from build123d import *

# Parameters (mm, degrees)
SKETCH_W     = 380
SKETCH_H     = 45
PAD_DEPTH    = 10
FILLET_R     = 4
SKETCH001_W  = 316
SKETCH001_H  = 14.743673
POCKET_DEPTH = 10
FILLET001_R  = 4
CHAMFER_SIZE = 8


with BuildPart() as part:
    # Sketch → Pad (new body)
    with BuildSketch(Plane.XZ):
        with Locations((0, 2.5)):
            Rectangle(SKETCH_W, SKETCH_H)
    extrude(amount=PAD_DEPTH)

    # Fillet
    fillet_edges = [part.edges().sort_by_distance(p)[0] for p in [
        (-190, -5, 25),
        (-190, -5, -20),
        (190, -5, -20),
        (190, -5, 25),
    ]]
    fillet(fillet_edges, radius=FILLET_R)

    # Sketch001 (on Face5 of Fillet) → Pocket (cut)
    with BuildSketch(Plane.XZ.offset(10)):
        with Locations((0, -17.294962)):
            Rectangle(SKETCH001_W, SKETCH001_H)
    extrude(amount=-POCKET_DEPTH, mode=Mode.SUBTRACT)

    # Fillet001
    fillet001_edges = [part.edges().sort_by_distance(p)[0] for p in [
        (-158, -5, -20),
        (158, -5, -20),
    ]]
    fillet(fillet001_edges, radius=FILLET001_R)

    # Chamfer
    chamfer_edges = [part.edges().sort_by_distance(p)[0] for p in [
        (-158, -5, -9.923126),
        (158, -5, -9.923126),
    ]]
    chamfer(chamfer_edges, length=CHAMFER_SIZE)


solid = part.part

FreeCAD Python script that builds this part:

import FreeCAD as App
import Part
import Sketcher
Q = App.Units.Quantity


def edges_at(feature, points):
    """Names of the edges that pass closest to the given points."""
    edges = feature.Shape.Edges
    near = lambda p: min(range(len(edges)), key=lambda i: edges[i].distToShape(Part.Vertex(*p))[0])
    return sorted({f"Edge{near(p) + 1}" for p in points})

doc = App.newDocument("Part")
body = doc.addObject("PartDesign::Body", "Body")

# Sketch on XZ plane
sketch1 = body.newObject("Sketcher::SketchObject", "Sketch")
sketch1.AttachmentSupport = (doc.getObject("XZ_Plane"), [""])
sketch1.MapMode = "FlatFace"
sketch1.addGeometry([
    Part.LineSegment(App.Vector(-190, 25, 0), App.Vector(-190, -20, 0)),
    Part.LineSegment(App.Vector(-190, -20, 0), App.Vector(190, -20, 0)),
    Part.LineSegment(App.Vector(190, -20, 0), App.Vector(190, 25, 0)),
    Part.LineSegment(App.Vector(190, 25, 0), App.Vector(-190, 25, 0)),
], False)
sketch1.addConstraint([
    Sketcher.Constraint("Coincident", 0, 2, 1, 1),
    Sketcher.Constraint("Coincident", 1, 2, 2, 1),
    Sketcher.Constraint("Coincident", 2, 2, 3, 1),
    Sketcher.Constraint("Coincident", 3, 2, 0, 1),
    Sketcher.Constraint("Vertical", 0),
    Sketcher.Constraint("Horizontal", 1),
    Sketcher.Constraint("Vertical", 2),
    Sketcher.Constraint("Horizontal", 3),
    Sketcher.Constraint("DistanceX", 1, 1, 1, 2, Q("380 mm")),
    Sketcher.Constraint("DistanceY", 0, 2, 0, 1, Q("45 mm")),
    Sketcher.Constraint("DistanceX", 0, 2, -1, 1, Q("190 mm")),
    Sketcher.Constraint("DistanceY", 0, 2, -1, 1, Q("20 mm")),
])
pad1 = body.newObject("PartDesign::Pad", "Pad")
pad1.Profile = sketch1
pad1.Length = 10
doc.recompute()

fillet = body.newObject("PartDesign::Fillet", "Fillet")
fillet.Base = (pad1, edges_at(pad1, [
    (-190, -5, 25),
    (-190, -5, -20),
    (190, -5, -20),
    (190, -5, 25),
]))
fillet.Radius = 4

# Sketch on XZ plane
sketch2 = body.newObject("Sketcher::SketchObject", "Sketch001")
sketch2.AttachmentSupport = (doc.getObject("XZ_Plane"), [""])
sketch2.MapMode = "FlatFace"
sketch2.AttachmentOffset = App.Placement(App.Vector(0, 0, 10), App.Rotation())
sketch2.addGeometry([
    Part.LineSegment(App.Vector(-158, -10, 0), App.Vector(-158, -25, 0)),
    Part.LineSegment(App.Vector(-158, -25, 0), App.Vector(158, -25, 0)),
    Part.LineSegment(App.Vector(158, -25, 0), App.Vector(158, -10, 0)),
    Part.LineSegment(App.Vector(158, -10, 0), App.Vector(-158, -10, 0)),
], False)
sketch2.addConstraint([
    Sketcher.Constraint("Coincident", 0, 2, 1, 1),
    Sketcher.Constraint("Coincident", 1, 2, 2, 1),
    Sketcher.Constraint("Coincident", 2, 2, 3, 1),
    Sketcher.Constraint("Coincident", 3, 2, 0, 1),
    Sketcher.Constraint("Vertical", 0),
    Sketcher.Constraint("Horizontal", 1),
    Sketcher.Constraint("Vertical", 2),
    Sketcher.Constraint("Horizontal", 3),
    Sketcher.Constraint("DistanceX", 1, 1, 1, 2, Q("316 mm")),
    Sketcher.Constraint("DistanceX", 0, 2, -1, 1, Q("158 mm")),
    Sketcher.Constraint("DistanceY", 0, 2, -1, 1, Q("24.666798 mm")),
    Sketcher.Constraint("DistanceY", 0, 2, 0, 1, Q("14.743673 mm")),
])
pocket1 = body.newObject("PartDesign::Pocket", "Pocket")
pocket1.Profile = sketch2
pocket1.Length = 10
doc.recompute()

fillet2 = body.newObject("PartDesign::Fillet", "Fillet001")
fillet2.Base = (pocket1, edges_at(pocket1, [(-158, -5, -20), (158, -5, -20)]))
fillet2.Radius = 4
doc.recompute()

chamfer = body.newObject("PartDesign::Chamfer", "Chamfer")
chamfer.Base = (fillet2, edges_at(fillet2, [(-158, -5, -9.923), (158, -5, -9.923)]))
chamfer.Size = 8

doc.recompute()
